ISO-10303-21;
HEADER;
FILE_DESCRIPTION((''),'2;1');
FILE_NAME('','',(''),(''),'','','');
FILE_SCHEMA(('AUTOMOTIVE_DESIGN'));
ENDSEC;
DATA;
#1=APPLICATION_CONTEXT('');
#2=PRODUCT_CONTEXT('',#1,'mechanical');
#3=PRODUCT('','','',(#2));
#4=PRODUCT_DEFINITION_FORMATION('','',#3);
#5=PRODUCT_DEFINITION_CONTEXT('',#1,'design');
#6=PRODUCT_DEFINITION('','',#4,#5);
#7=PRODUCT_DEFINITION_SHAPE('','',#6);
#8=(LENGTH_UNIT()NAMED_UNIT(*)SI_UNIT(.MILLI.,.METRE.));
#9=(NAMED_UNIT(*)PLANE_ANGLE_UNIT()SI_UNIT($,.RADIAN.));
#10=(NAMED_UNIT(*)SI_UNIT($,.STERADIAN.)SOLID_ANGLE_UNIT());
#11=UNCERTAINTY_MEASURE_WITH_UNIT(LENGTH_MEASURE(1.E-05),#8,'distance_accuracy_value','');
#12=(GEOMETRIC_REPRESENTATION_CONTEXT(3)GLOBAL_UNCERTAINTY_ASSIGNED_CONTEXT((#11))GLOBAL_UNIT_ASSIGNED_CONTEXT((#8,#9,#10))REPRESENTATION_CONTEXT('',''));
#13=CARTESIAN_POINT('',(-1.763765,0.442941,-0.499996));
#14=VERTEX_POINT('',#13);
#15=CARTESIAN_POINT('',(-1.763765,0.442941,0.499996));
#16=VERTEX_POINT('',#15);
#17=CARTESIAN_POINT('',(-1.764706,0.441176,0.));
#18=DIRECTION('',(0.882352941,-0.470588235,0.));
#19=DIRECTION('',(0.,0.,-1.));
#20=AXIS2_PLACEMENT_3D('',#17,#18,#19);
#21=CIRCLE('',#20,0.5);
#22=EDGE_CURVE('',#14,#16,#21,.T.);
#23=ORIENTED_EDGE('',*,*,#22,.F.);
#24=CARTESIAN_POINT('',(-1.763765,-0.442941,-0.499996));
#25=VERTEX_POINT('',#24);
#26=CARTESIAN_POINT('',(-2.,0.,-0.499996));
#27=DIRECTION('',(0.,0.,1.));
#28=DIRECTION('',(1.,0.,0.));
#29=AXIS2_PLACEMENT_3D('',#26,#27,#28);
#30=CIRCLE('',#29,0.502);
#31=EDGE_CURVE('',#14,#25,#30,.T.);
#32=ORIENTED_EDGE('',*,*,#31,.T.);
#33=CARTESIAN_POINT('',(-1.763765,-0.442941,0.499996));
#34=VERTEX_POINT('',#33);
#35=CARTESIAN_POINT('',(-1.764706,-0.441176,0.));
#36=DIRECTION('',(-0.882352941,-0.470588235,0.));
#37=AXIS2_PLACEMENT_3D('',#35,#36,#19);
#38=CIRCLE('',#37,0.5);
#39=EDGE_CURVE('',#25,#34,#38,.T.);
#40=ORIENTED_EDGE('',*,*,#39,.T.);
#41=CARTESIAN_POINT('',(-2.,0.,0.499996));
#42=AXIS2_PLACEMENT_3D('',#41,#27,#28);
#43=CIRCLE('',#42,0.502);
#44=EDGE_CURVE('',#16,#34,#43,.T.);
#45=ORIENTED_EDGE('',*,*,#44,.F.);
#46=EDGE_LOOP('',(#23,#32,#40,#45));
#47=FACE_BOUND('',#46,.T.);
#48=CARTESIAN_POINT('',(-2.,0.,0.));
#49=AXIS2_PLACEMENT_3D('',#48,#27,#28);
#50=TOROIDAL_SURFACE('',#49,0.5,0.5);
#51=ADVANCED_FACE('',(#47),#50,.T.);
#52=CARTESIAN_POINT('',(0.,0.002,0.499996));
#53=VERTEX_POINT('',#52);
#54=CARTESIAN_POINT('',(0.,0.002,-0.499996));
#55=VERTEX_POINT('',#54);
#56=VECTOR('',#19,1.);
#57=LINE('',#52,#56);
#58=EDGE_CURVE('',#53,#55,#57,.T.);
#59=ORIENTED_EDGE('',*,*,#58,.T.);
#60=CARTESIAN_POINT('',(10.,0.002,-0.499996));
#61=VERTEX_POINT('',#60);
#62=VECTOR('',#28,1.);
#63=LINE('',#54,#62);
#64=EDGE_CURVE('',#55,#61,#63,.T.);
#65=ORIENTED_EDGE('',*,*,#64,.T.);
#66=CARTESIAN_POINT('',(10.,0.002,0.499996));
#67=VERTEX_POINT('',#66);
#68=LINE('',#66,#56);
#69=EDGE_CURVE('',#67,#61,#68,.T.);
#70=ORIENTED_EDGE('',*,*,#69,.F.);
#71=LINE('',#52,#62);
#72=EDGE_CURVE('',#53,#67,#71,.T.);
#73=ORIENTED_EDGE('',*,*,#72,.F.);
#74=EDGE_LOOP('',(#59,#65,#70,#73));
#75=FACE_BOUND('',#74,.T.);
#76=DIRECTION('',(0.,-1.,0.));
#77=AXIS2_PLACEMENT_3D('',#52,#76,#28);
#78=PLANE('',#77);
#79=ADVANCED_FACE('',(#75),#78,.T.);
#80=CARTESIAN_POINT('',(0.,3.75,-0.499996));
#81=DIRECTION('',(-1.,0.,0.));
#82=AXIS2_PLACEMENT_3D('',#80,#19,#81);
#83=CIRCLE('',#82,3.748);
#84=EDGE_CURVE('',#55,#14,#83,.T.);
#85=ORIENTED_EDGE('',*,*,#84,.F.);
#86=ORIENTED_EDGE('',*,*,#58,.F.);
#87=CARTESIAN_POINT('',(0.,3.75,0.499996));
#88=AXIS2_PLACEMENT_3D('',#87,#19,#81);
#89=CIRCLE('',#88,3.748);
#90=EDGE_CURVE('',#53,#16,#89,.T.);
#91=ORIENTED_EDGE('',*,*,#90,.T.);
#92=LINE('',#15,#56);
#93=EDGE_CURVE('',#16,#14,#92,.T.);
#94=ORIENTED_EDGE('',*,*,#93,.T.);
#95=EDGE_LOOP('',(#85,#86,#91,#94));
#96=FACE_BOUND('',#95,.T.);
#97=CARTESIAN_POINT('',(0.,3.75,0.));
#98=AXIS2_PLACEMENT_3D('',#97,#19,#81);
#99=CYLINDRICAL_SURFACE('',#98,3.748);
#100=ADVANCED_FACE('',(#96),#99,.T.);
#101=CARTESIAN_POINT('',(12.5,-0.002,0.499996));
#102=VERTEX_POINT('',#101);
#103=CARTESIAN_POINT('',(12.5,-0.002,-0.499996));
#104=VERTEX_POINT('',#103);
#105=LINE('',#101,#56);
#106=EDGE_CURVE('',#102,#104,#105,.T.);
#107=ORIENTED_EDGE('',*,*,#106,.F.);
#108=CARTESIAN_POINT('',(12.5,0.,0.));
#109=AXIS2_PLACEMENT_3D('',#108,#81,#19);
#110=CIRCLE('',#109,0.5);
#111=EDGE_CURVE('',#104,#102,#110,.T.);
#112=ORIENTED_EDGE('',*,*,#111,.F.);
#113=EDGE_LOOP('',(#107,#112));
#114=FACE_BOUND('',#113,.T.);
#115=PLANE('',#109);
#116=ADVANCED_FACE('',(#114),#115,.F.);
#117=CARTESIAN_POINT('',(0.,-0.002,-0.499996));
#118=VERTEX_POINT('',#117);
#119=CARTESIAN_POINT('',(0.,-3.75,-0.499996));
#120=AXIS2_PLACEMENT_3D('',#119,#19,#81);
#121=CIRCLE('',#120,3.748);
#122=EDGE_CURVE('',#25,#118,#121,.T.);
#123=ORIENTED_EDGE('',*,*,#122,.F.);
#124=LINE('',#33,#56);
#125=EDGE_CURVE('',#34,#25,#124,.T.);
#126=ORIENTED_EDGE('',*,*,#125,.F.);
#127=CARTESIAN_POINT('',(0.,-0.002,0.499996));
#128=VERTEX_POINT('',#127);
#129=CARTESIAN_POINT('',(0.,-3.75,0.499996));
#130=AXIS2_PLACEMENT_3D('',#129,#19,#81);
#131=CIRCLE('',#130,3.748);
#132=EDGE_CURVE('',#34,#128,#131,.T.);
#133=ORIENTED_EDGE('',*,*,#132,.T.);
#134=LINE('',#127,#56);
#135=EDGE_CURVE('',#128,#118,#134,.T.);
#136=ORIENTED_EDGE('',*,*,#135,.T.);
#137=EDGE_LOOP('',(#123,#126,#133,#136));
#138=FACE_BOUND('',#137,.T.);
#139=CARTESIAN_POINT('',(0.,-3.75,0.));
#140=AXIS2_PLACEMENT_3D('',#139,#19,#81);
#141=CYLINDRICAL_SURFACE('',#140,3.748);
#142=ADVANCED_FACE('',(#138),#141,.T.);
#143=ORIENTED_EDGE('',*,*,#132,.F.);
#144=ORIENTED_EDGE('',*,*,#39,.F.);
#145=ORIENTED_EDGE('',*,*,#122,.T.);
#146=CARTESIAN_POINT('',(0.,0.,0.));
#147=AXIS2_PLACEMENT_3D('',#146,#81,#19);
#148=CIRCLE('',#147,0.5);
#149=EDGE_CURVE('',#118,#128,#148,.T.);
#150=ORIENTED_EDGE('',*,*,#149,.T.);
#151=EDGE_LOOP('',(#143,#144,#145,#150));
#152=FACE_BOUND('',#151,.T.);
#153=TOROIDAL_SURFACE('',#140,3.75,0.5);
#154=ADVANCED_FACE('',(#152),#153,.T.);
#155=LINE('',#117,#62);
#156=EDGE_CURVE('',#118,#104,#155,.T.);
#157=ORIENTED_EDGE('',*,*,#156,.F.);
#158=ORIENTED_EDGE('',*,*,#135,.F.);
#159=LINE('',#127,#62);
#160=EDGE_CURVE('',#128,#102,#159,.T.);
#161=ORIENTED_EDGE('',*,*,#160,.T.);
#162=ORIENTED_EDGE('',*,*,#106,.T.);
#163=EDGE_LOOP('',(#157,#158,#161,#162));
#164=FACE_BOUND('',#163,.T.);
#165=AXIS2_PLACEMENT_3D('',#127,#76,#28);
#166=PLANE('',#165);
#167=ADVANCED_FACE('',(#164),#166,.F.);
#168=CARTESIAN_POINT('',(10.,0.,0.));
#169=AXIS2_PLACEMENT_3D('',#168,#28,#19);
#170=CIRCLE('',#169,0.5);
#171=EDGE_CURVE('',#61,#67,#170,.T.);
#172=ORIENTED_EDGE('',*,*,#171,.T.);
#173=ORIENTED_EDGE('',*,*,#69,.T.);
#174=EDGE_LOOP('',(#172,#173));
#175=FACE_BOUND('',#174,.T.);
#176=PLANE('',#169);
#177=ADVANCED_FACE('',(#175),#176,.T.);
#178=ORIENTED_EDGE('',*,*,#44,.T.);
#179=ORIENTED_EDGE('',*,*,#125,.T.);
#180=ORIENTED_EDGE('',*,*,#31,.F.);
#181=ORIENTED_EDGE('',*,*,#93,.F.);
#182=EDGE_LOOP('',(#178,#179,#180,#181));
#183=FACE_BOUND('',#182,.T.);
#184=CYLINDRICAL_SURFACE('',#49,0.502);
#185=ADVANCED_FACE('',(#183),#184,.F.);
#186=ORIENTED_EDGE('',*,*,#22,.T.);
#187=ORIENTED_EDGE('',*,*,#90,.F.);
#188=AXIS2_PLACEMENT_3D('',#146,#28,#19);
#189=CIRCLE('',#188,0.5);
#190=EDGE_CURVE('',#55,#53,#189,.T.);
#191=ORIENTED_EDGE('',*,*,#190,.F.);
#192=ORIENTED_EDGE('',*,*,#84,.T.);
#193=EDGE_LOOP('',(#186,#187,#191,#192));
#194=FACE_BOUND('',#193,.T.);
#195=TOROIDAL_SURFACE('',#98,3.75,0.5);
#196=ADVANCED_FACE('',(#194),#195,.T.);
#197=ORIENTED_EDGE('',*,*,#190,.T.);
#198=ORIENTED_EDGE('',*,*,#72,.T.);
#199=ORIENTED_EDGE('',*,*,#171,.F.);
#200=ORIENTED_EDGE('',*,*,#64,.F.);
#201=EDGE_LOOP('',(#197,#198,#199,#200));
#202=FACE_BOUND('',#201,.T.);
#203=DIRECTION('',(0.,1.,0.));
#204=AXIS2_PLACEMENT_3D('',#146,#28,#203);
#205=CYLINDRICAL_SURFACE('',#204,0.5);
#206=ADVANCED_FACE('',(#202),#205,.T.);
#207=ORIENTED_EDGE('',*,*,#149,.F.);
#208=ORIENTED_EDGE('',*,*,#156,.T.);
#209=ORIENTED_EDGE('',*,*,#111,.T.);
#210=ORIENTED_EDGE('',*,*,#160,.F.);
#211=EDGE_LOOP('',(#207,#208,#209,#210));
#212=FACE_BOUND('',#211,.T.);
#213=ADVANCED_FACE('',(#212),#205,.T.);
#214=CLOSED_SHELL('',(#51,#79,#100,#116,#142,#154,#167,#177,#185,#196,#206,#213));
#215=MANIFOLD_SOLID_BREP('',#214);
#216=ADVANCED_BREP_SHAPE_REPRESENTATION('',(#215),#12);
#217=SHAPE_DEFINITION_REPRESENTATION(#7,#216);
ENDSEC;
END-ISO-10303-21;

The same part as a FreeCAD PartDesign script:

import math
import FreeCAD as App
import Part
import Sketcher

V = App.Vector

doc = App.newDocument("Part")
params = doc.addObject("Spreadsheet::Sheet", "Params")
for row, (alias, value) in enumerate([
    ("sketch1_radius", "0.5 mm"),
    ("sketch2_radius", "1 mm"),
    ("sketch2_width", "10 mm"),
    ("sketch2_radius2", "3.25 mm"),
    ("sketch2_width2", "12.5 mm"),
], start=1):
    params.set(f"A{row}", alias)
    params.set(f"B{row}", "=" + value)
    params.setAlias(f"B{row}", alias)

body = doc.addObject("PartDesign::Body", "Body")

sketch1 = body.newObject("Sketcher::SketchObject", "Sketch")
sketch1.AttachmentSupport = (doc.getObject("YZ_Plane"), [""])
sketch1.MapMode = "FlatFace"
sketch1.AttachmentOffset = App.Placement(V(0, 0, 10), App.Rotation())
sketch1.addGeometry([
    Part.LineSegment(V(0.002, 0.499996, 0), V(0.002, -0.499996, 0)),
    Part.ArcOfCircle(Part.Circle(V(0, 0, 0), V(0, 0, 1), 0.5), math.radians(-89.770816), math.radians(89.770816)),
], False)
sketch1.addConstraint([
    Sketcher.Constraint("Coincident", 0, 1, 1, 2),
    Sketcher.Constraint("Coincident", 1, 1, 0, 2),
    Sketcher.Constraint("Vertical", 0),
    Sketcher.Constraint("Coincident", 1, 3, -1, 1),
    Sketcher.Constraint("Radius", 1, 0.5),
    Sketcher.Constraint("DistanceX", -1, 1, 0, 1, 0.002),
])
sketch1.setExpression("Constraints[4]", "Params.sketch1_radius")

sketch2 = body.newObject("Sketcher::SketchObject", "Sketch001")
sketch2.AttachmentSupport = (doc.getObject("XY_Plane"), [""])
sketch2.MapMode = "FlatFace"
sketch2.addGeometry([
    Part.LineSegment(V(10, 0.5, 0), V(0, 0.5, 0)),
    Part.ArcOfCircle(Part.Circle(V(0, 3.75, 0), V(0, 0, 1), 3.25), math.radians(-118.072487), math.radians(-90)),
    Part.ArcOfCircle(Part.Circle(V(-2, 0, 0), V(0, 0, 1), 1), math.radians(61.927513), math.radians(298.072487)),
    Part.ArcOfCircle(Part.Circle(V(0, -3.75, 0), V(0, 0, 1), 3.25), math.radians(90), math.radians(118.072487)),
    Part.LineSegment(V(0, -0.5, 0), V(12.5, -0.5, 0)),
], False)
sketch2.addConstraint([
    Sketcher.Constraint("Tangent", 0, 2, 1, 2),
    Sketcher.Constraint("Tangent", 1, 1, 2, 1),
    Sketcher.Constraint("Tangent", 2, 2, 3, 2),
    Sketcher.Constraint("Tangent", 3, 1, 4, 1),
    Sketcher.Constraint("Horizontal", 0),
    Sketcher.Constraint("Horizontal", 4),
    Sketcher.Constraint("Equal", 1, 3),
    Sketcher.Constraint("Symmetric", 1, 3, 3, 3, -1, 1),
    Sketcher.Constraint("PointOnObject", 1, 3, -2),
    Sketcher.Constraint("Radius", 2, 1.0),
    Sketcher.Constraint("DistanceX", 0, 2, 0, 1, 10.0),
    Sketcher.Constraint("Radius", 1, 3.25),
    Sketcher.Constraint("DistanceX", 4, 1, 4, 2, 12.5),
    Sketcher.Constraint("DistanceX", 2, 3, -1, 1, 2.0),
])
sketch2.setExpression("Constraints[9]", "Params.sketch2_radius")
sketch2.setExpression("Constraints[10]", "Params.sketch2_width")
sketch2.setExpression("Constraints[11]", "Params.sketch2_radius2")
sketch2.setExpression("Constraints[12]", "Params.sketch2_width2")
doc.recompute()

additivepipe = body.newObject("PartDesign::AdditivePipe", "AdditivePipe")
additivepipe.Profile = sketch1
additivepipe.Spine = (sketch2, ["Edge1", "Edge2", "Edge3", "Edge4", "Edge5"])

doc.recompute()
